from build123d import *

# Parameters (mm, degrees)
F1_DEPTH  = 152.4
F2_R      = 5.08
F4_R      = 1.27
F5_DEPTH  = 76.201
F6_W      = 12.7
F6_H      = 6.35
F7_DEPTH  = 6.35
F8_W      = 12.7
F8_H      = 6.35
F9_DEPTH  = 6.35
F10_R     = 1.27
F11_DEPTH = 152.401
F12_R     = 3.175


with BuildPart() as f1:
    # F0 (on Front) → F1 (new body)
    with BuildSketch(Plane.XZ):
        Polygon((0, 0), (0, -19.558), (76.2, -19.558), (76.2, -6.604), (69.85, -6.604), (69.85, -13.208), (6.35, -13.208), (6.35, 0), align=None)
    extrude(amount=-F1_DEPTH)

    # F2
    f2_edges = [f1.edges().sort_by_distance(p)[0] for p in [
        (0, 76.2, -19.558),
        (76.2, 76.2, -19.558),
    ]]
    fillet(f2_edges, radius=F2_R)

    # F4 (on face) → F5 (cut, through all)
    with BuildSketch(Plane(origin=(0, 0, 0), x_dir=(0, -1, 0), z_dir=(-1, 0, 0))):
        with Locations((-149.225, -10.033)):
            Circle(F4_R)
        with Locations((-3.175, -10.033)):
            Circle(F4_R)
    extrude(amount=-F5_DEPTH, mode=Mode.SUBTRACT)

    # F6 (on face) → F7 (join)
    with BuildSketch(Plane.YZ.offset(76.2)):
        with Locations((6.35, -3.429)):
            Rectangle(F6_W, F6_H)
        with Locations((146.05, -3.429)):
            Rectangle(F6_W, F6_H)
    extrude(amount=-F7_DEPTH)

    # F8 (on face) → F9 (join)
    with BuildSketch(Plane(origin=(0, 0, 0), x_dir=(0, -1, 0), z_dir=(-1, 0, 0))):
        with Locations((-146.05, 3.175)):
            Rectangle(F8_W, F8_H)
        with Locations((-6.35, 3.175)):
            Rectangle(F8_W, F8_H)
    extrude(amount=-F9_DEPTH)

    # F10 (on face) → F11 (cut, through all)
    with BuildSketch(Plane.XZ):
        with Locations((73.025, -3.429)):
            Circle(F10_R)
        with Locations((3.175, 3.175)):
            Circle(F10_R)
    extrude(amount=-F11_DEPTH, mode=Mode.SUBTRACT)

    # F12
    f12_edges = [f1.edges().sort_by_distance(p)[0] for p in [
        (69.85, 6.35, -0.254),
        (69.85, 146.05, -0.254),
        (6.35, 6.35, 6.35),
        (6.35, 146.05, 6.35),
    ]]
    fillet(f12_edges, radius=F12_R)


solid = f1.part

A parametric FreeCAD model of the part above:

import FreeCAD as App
import Part
import Sketcher

V = App.Vector
Q = App.Units.Quantity


def edges_at(feature, points):
    """Names of the edges that pass closest to the given points."""
    edges = feature.Shape.Edges
    near = lambda p: min(range(len(edges)), key=lambda i: edges[i].distToShape(Part.Vertex(*p))[0])
    return sorted({f"Edge{near(p) + 1}" for p in points})

doc = App.newDocument("Part")
params = doc.addObject("Spreadsheet::Sheet", "Params")
for row, (alias, value) in enumerate([
    ("sketch1_width", "3 in"),
    ("sketch1_width2", "2.5 in"),
    ("sketch1_height", "0.77 in"),
    ("sketch1_height2", "0.51 in"),
    ("sketch1_height3", "0.26 in"),
    ("pad1_length", "6 in"),
    ("fillet_radius", "0.2 in"),
    ("sketch2_diameter", "0.1 in"),
    ("sketch3_width", "0.5 in"),
    ("sketch3_height", "0.25 in"),
    ("pad2_length", "0.25 in"),
    ("sketch4_width", "0.5 in"),
    ("sketch4_height", "0.25 in"),
    ("pad3_length", "0.25 in"),
    ("sketch5_diameter", "0.1 in"),
    ("fillet2_radius", "0.125 in"),
], start=1):
    params.set(f"A{row}", alias)
    params.set(f"B{row}", "=" + value)
    params.setAlias(f"B{row}", alias)

body = doc.addObject("PartDesign::Body", "Body")

sketch1 = body.newObject("Sketcher::SketchObject", "Sketch")
sketch1.AttachmentSupport = (doc.getObject("XZ_Plane"), [""])
sketch1.MapMode = "FlatFace"
sketch1.addGeometry(Part.LineSegment(V(0, 0, 0), V(0, -20, 0)), False)
sketch1.addGeometry(Part.LineSegment(V(0, -20, 0), V(76, -20, 0)), False)
sketch1.addGeometry(Part.LineSegment(V(76, -20, 0), V(76, -7, 0)), False)
sketch1.addGeometry(Part.LineSegment(V(76, -7, 0), V(70, -7, 0)), False)
sketch1.addGeometry(Part.LineSegment(V(70, -7, 0), V(70, -13, 0)), False)
sketch1.addGeometry(Part.LineSegment(V(70, -13, 0), V(6, -13, 0)), False)
sketch1.addGeometry(Part.LineSegment(V(6, -13, 0), V(6, 0, 0)), False)
sketch1.addGeometry(Part.LineSegment(V(6, 0, 0), V(0, 0, 0)), False)
sketch1.addConstraint(Sketcher.Constraint("Coincident", 0, 2, 1, 1))
sketch1.addConstraint(Sketcher.Constraint("Coincident", 1, 2, 2, 1))
sketch1.addConstraint(Sketcher.Constraint("Coincident", 2, 2, 3, 1))
sketch1.addConstraint(Sketcher.Constraint("Coincident", 3, 2, 4, 1))
sketch1.addConstraint(Sketcher.Constraint("Coincident", 4, 2, 5, 1))
sketch1.addConstraint(Sketcher.Constraint("Coincident", 5, 2, 6, 1))
sketch1.addConstraint(Sketcher.Constraint("Coincident", 6, 2, 7, 1))
sketch1.addConstraint(Sketcher.Constraint("Coincident", 7, 2, 0, 1))
sketch1.addConstraint(Sketcher.Constraint("Vertical", 0))
sketch1.addConstraint(Sketcher.Constraint("Horizontal", 1))
sketch1.addConstraint(Sketcher.Constraint("Vertical", 2))
sketch1.addConstraint(Sketcher.Constraint("Horizontal", 3))
sketch1.addConstraint(Sketcher.Constraint("Vertical", 4))
sketch1.addConstraint(Sketcher.Constraint("Horizontal", 5))
sketch1.addConstraint(Sketcher.Constraint("Vertical", 6))
sketch1.addConstraint(Sketcher.Constraint("Horizontal", 7))
sketch1.addConstraint(Sketcher.Constraint("Coincident", 7, 2, -1, 1))
sketch1.addConstraint(Sketcher.Constraint("Equal", 3, 7))
sketch1.addConstraint(Sketcher.Constraint("DistanceX", 1, 1, 1, 2, Q("3 in")))
sketch1.addConstraint(Sketcher.Constraint("DistanceX", 5, 2, 5, 1, Q("2.5 in")))
sketch1.addConstraint(Sketcher.Constraint("DistanceY", 0, 2, 0, 1, Q("0.77 in")))
sketch1.addConstraint(Sketcher.Constraint("DistanceY", 2, 1, 2, 2, Q("0.51 in")))
sketch1.addConstraint(Sketcher.Constraint("DistanceY", 4, 2, 4, 1, Q("0.26 in")))
sketch1.setExpression("Constraints[18]", "Params.sketch1_width")
sketch1.setExpression("Constraints[19]", "Params.sketch1_width2")
sketch1.setExpression("Constraints[20]", "Params.sketch1_height")
sketch1.setExpression("Constraints[21]", "Params.sketch1_height2")
sketch1.setExpression("Constraints[22]", "Params.sketch1_height3")
pad1 = body.newObject("PartDesign::Pad", "Pad")
pad1.Profile = sketch1
pad1.setExpression("Length", "Params.pad1_length")
pad1.Reversed = True
doc.recompute()

fillet = body.newObject("PartDesign::Fillet", "Fillet")
fillet.Base = (pad1, edges_at(pad1, [(0, 76.2, -19.558), (76.2, 76.2, -19.558)]))
fillet.setExpression("Radius", "Params.fillet_radius")

sketch2 = body.newObject("Sketcher::SketchObject", "Sketch001")
sketch2.AttachmentSupport = (doc.getObject("YZ_Plane"), [""])
sketch2.MapMode = "FlatFace"
sketch2.addGeometry(Part.Circle(V(149.2, -10, 0), V(0, 0, 1), 1.3), False)
sketch2.addGeometry(Part.Circle(V(3.2, -10, 0), V(0, 0, 1), 1.3), False)
sketch2.addConstraint(Sketcher.Constraint("Equal", 0, 1))
sketch2.addConstraint(Sketcher.Constraint("Horizontal", 0, 3, 1, 3))
sketch2.addConstraint(Sketcher.Constraint("Diameter", 0, Q("0.1 in")))
sketch2.addConstraint(Sketcher.Constraint("DistanceX", 1, 3, 0, 3, Q("5.75 in")))
sketch2.addConstraint(Sketcher.Constraint("DistanceX", -1, 1, 0, 3, Q("5.875 in")))
sketch2.addConstraint(Sketcher.Constraint("DistanceY", 0, 3, -1, 1, Q("0.395 in")))
sketch2.setExpression("Constraints[2]", "Params.sketch2_diameter")
pocket1 = body.newObject("PartDesign::Pocket", "Pocket")
pocket1.Profile = sketch2
pocket1.Type = "ThroughAll"
pocket1.Reversed = True

sketch3 = body.newObject("Sketcher::SketchObject", "Sketch002")
sketch3.AttachmentSupport = (doc.getObject("YZ_Plane"), [""])
sketch3.MapMode = "FlatFace"
sketch3.AttachmentOffset = App.Placement(V(0, 0, 3 * 25.4), App.Rotation())
sketch3.addGeometry(Part.LineSegment(V(0, 0, 0), V(0, -7, 0)), False)
sketch3.addGeometry(Part.LineSegment(V(0, -7, 0), V(13, -7, 0)), False)
sketch3.addGeometry(Part.LineSegment(V(13, -7, 0), V(13, 0, 0)), False)
sketch3.addGeometry(Part.LineSegment(V(13, 0, 0), V(0, 0, 0)), False)
sketch3.addGeometry(Part.LineSegment(V(140, 0, 0), V(140, -7, 0)), False)
sketch3.addGeometry(Part.LineSegment(V(140, -7, 0), V(152, -7, 0)), False)
sketch3.addGeometry(Part.LineSegment(V(152, -7, 0), V(152, 0, 0)), False)
sketch3.addGeometry(Part.LineSegment(V(152, 0, 0), V(140, 0, 0)), False)
sketch3.addConstraint(Sketcher.Constraint("Coincident", 0, 2, 1, 1))
sketch3.addConstraint(Sketcher.Constraint("Coincident", 1, 2, 2, 1))
sketch3.addConstraint(Sketcher.Constraint("Coincident", 2, 2, 3, 1))
sketch3.addConstraint(Sketcher.Constraint("Coincident", 3, 2, 0, 1))
sketch3.addConstraint(Sketcher.Constraint("Coincident", 4, 2, 5, 1))
sketch3.addConstraint(Sketcher.Constraint("Coincident", 5, 2, 6, 1))
sketch3.addConstraint(Sketcher.Constraint("Coincident", 6, 2, 7, 1))
sketch3.addConstraint(Sketcher.Constraint("Coincident", 7, 2, 4, 1))
sketch3.addConstraint(Sketcher.Constraint("Vertical", 0))
sketch3.addConstraint(Sketcher.Constraint("Horizontal", 1))
sketch3.addConstraint(Sketcher.Constraint("Vertical", 2))
sketch3.addConstraint(Sketcher.Constraint("Horizontal", 3))
sketch3.addConstraint(Sketcher.Constraint("Vertical", 4))
sketch3.addConstraint(Sketcher.Constraint("Horizontal", 5))
sketch3.addConstraint(Sketcher.Constraint("Vertical", 6))
sketch3.addConstraint(Sketcher.Constraint("Horizontal", 7))
sketch3.addConstraint(Sketcher.Constraint("PointOnObject", 0, 2, -2))
sketch3.addConstraint(Sketcher.Constraint("Horizontal", 1, 2, 4, 2))
sketch3.addConstraint(Sketcher.Constraint("Horizontal", 3, 2, 6, 2))
sketch3.addConstraint(Sketcher.Constraint("Equal", 3, 5))
sketch3.addConstraint(Sketcher.Constraint("DistanceX", 1, 1, 1, 2, Q("0.5 in")))
sketch3.addConstraint(Sketcher.Constraint("DistanceX", -1, 1, 5, 2, Q("6 in")))
sketch3.addConstraint(Sketcher.Constraint("DistanceY", 0, 2, 0, 1, Q("0.25 in")))
sketch3.addConstraint(Sketcher.Constraint("DistanceY", 0, 2, -1, 1, Q("0.26 in")))
sketch3.setExpression("Constraints[20]", "Params.sketch3_width")
sketch3.setExpression("Constraints[22]", "Params.sketch3_height")
pad2 = body.newObject("PartDesign::Pad", "Pad001")
pad2.Profile = sketch3
pad2.setExpression("Length", "Params.pad2_length")
pad2.Reversed = True

sketch4 = body.newObject("Sketcher::SketchObject", "Sketch003")
sketch4.AttachmentSupport = (doc.getObject("YZ_Plane"), [""])
sketch4.MapMode = "FlatFace"
sketch4.addGeometry(Part.LineSegment(V(152, 6, 0), V(152, 0, 0)), False)
sketch4.addGeometry(Part.LineSegment(V(152, 0, 0), V(140, 0, 0)), False)
sketch4.addGeometry(Part.LineSegment(V(140, 0, 0), V(140, 6, 0)), False)
sketch4.addGeometry(Part.LineSegment(V(140, 6, 0), V(152, 6, 0)), False)
sketch4.addGeometry(Part.LineSegment(V(13, 6, 0), V(13, 0, 0)), False)
sketch4.addGeometry(Part.LineSegment(V(13, 0, 0), V(0, 0, 0)), False)
sketch4.addGeometry(Part.LineSegment(V(0, 0, 0), V(0, 6, 0)), False)
sketch4.addGeometry(Part.LineSegment(V(0, 6, 0), V(13, 6, 0)), False)
sketch4.addConstraint(Sketcher.Constraint("Coincident", 0, 2, 1, 1))
sketch4.addConstraint(Sketcher.Constraint("Coincident", 1, 2, 2, 1))
sketch4.addConstraint(Sketcher.Constraint("Coincident", 2, 2, 3, 1))
sketch4.addConstraint(Sketcher.Constraint("Coincident", 3, 2, 0, 1))
sketch4.addConstraint(Sketcher.Constraint("Coincident", 4, 2, 5, 1))
sketch4.addConstraint(Sketcher.Constraint("Coincident", 5, 2, 6, 1))
sketch4.addConstraint(Sketcher.Constraint("Coincident", 6, 2, 7, 1))
sketch4.addConstraint(Sketcher.Constraint("Coincident", 7, 2, 4, 1))
sketch4.addConstraint(Sketcher.Constraint("Vertical", 0))
sketch4.addConstraint(Sketcher.Constraint("Horizontal", 1))
sketch4.addConstraint(Sketcher.Constraint("Vertical", 2))
sketch4.addConstraint(Sketcher.Constraint("Horizontal", 3))
sketch4.addConstraint(Sketcher.Constraint("Vertical", 4))
sketch4.addConstraint(Sketcher.Constraint("Horizontal", 5))
sketch4.addConstraint(Sketcher.Constraint("Vertical", 6))
sketch4.addConstraint(Sketcher.Constraint("Horizontal", 7))
sketch4.addConstraint(Sketcher.Constraint("Coincident", 5, 2, -1, 1))
sketch4.addConstraint(Sketcher.Constraint("PointOnObject", 0, 2, -1))
sketch4.addConstraint(Sketcher.Constraint("Horizontal", 3, 2, 6, 2))
sketch4.addConstraint(Sketcher.Constraint("Equal", 3, 5))
sketch4.addConstraint(Sketcher.Constraint("DistanceX", 1, 2, 1, 1, Q("0.5 in")))
sketch4.addConstraint(Sketcher.Constraint("DistanceX", -1, 1, 0, 2, Q("6 in")))
sketch4.addConstraint(Sketcher.Constraint("DistanceY", 0, 2, 0, 1, Q("0.25 in")))
sketch4.setExpression("Constraints[20]", "Params.sketch4_width")
sketch4.setExpression("Constraints[22]", "Params.sketch4_height")
pad3 = body.newObject("PartDesign::Pad", "Pad002")
pad3.Profile = sketch4
pad3.setExpression("Length", "Params.pad3_length")

sketch5 = body.newObject("Sketcher::SketchObject", "Sketch004")
sketch5.AttachmentSupport = (doc.getObject("XZ_Plane"), [""])
sketch5.MapMode = "FlatFace"
sketch5.addGeometry(Part.Circle(V(73, -3.4, 0), V(0, 0, 1), 1.3), False)
sketch5.addGeometry(Part.Circle(V(3.2, 3.2, 0), V(0, 0, 1), 1.3), False)
sketch5.addConstraint(Sketcher.Constraint("Equal", 0, 1))
sketch5.addConstraint(Sketcher.Constraint("Diameter", 0, Q("0.1 in")))
sketch5.addConstraint(Sketcher.Constraint("DistanceX", 1, 3, 0, 3, Q("2.75 in")))
sketch5.addConstraint(Sketcher.Constraint("DistanceY", 0, 3, 1, 3, Q("0.26 in")))
sketch5.addConstraint(Sketcher.Constraint("DistanceX", -1, 1, 0, 3, Q("2.875 in")))
sketch5.addConstraint(Sketcher.Constraint("DistanceY", 0, 3, -1, 1, Q("0.135 in")))
sketch5.setExpression("Constraints[1]", "Params.sketch5_diameter")
pocket2 = body.newObject("PartDesign::Pocket", "Pocket001")
pocket2.Profile = sketch5
pocket2.Type = "ThroughAll"
doc.recompute()

fillet2 = body.newObject("PartDesign::Fillet", "Fillet001")
fillet2.Base = (pocket2, edges_at(pocket2, [
    (69.85, 6.35, -0.254),
    (69.85, 146.05, -0.254),
    (6.35, 6.35, 6.35),
    (6.35, 146.05, 6.35),
]))
fillet2.setExpression("Radius", "Params.fillet2_radius")

doc.recompute()
